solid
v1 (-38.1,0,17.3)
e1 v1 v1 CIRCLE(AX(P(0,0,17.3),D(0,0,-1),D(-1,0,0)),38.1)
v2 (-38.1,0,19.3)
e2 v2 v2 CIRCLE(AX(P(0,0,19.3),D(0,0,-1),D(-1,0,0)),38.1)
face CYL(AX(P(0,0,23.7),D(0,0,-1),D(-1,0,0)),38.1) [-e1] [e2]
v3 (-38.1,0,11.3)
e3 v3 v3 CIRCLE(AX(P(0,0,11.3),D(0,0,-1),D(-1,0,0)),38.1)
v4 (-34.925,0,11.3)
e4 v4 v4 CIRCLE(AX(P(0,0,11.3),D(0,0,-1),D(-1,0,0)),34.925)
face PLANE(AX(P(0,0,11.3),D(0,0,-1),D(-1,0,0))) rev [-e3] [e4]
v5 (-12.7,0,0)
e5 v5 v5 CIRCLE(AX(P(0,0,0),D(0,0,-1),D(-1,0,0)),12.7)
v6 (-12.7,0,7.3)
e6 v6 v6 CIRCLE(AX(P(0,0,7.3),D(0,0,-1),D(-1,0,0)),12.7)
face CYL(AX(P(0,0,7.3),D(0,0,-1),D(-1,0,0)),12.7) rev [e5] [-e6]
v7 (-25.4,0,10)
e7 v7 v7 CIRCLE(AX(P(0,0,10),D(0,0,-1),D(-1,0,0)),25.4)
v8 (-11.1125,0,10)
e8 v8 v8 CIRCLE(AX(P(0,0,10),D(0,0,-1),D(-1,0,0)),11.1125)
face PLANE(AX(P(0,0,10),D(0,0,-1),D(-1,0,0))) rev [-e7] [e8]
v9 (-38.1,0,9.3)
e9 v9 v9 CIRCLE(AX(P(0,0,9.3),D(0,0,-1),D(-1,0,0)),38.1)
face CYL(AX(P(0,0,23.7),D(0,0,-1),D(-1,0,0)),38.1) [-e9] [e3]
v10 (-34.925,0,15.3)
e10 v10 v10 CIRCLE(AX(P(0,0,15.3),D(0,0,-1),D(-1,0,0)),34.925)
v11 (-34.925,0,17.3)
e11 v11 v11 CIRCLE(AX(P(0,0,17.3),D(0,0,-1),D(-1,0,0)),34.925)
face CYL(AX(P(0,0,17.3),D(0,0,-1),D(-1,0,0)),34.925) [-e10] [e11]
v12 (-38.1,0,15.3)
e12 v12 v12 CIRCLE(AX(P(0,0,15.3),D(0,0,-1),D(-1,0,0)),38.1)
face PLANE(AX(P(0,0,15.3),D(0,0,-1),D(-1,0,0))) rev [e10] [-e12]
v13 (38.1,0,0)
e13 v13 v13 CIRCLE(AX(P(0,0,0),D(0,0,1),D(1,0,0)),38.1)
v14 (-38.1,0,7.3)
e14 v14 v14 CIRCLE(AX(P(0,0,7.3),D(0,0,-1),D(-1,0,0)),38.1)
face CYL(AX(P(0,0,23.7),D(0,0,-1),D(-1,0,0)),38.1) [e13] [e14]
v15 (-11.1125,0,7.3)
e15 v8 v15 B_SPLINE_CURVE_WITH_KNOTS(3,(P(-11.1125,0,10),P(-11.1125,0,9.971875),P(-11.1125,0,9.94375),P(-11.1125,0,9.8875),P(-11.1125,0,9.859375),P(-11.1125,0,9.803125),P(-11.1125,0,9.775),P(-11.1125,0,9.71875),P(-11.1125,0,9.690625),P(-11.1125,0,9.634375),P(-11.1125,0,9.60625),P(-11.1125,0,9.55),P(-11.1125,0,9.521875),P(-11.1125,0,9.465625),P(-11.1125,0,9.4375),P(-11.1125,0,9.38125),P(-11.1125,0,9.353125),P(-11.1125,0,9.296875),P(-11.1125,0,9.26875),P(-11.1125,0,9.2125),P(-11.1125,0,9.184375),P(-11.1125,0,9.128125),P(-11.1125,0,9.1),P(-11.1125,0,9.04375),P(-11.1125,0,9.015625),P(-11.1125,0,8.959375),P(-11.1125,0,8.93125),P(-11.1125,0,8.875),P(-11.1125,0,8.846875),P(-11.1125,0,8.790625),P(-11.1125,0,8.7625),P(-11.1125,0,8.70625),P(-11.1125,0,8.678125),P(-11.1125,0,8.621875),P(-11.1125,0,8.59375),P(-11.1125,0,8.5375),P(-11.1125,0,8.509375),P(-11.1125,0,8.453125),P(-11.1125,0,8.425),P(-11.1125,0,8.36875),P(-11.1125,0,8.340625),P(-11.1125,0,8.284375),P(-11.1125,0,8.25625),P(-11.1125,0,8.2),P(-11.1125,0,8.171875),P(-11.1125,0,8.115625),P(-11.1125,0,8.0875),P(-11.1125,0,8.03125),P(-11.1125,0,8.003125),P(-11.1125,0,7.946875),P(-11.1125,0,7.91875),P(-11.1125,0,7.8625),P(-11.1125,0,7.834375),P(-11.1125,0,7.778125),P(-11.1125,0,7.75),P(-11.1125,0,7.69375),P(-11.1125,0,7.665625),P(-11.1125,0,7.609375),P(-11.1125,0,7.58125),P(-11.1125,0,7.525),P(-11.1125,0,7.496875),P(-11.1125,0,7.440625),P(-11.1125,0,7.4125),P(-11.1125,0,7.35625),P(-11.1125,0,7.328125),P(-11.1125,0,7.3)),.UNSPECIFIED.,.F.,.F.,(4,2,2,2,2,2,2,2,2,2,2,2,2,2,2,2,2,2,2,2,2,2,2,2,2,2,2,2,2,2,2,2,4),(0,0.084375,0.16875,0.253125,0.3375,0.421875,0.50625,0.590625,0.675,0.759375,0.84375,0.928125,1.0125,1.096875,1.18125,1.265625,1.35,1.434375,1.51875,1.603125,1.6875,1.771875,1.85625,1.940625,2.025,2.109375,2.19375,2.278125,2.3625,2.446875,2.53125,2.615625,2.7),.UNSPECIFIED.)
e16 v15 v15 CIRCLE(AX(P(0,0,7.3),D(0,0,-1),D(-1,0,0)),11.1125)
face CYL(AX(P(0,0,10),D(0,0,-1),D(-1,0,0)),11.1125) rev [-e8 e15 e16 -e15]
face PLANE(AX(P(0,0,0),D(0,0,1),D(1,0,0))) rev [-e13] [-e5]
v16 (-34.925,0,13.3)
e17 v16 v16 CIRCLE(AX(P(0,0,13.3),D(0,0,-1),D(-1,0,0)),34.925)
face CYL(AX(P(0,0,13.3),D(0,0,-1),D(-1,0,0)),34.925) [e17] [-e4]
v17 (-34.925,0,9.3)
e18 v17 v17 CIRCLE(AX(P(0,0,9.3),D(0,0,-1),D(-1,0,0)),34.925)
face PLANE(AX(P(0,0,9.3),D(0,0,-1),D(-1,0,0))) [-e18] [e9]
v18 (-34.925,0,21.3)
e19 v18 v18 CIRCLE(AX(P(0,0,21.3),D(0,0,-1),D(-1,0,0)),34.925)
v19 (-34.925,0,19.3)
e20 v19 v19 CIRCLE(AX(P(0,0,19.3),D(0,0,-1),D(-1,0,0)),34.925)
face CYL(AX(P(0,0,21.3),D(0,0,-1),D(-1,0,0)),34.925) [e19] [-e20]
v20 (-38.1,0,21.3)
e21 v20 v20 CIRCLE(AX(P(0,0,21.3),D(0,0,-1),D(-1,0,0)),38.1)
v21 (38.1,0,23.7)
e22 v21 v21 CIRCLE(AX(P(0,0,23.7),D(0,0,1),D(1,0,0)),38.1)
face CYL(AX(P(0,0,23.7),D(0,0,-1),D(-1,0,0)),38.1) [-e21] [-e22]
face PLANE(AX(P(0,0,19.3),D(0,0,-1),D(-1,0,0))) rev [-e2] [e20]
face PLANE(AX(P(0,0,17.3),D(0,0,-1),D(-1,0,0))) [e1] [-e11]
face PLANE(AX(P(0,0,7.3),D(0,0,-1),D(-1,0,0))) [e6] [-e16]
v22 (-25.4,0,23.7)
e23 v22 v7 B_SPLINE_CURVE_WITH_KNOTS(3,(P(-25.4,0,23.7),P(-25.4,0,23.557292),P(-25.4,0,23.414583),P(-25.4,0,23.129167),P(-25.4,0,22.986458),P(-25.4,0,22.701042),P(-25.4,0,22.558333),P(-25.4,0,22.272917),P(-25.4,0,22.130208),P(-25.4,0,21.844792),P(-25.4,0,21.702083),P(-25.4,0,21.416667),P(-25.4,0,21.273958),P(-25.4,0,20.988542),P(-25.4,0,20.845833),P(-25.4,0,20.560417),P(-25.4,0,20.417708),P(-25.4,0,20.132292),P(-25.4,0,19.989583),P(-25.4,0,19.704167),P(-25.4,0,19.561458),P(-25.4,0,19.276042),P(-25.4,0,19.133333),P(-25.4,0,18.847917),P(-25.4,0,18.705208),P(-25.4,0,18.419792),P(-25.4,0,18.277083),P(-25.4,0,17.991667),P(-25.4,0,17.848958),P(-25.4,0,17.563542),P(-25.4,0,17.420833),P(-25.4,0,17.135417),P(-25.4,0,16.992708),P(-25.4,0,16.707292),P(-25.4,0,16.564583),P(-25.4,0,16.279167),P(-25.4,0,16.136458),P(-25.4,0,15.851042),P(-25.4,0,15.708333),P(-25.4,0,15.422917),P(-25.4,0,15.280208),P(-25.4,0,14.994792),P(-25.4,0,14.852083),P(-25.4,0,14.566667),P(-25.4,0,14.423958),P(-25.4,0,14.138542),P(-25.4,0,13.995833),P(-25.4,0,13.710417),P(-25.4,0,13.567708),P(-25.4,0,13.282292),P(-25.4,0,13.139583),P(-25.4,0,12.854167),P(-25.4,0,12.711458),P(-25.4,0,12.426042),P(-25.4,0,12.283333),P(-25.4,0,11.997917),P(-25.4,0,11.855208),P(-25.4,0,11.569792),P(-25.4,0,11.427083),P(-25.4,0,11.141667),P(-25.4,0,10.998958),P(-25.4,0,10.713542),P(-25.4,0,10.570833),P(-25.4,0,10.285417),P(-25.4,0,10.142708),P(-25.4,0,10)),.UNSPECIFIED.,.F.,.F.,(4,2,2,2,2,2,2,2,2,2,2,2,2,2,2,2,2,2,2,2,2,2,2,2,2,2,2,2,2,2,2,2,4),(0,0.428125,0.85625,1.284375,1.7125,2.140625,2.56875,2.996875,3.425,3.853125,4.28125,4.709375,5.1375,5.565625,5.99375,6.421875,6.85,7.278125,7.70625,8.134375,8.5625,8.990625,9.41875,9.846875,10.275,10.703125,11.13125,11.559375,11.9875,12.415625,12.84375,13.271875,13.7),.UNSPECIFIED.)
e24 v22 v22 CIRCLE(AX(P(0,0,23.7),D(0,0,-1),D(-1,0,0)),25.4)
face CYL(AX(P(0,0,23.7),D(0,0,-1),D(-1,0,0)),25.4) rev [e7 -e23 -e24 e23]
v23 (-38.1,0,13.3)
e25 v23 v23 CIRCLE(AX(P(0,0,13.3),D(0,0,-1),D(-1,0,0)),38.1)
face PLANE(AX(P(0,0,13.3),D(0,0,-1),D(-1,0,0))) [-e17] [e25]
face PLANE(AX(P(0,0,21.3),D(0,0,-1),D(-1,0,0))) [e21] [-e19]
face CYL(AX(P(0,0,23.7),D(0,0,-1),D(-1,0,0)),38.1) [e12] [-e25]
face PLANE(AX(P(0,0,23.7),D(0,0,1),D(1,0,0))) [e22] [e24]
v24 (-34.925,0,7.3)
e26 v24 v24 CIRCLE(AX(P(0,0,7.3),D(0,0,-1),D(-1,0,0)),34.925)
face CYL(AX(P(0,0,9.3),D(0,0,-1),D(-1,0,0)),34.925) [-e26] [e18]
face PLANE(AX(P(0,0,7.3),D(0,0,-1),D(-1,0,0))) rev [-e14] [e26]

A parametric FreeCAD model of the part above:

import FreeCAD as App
import Part
import Sketcher

V = App.Vector
Q = App.Units.Quantity

doc = App.newDocument("Part")
body = doc.addObject("PartDesign::Body", "Body")

# Sketch on XY plane
sketch1 = body.newObject("Sketcher::SketchObject", "Sketch")
sketch1.AttachmentSupport = (doc.getObject("XY_Plane"), [""])
sketch1.MapMode = "FlatFace"
sketch1.addGeometry(Part.Circle(V(0, 0, 0), V(0, 0, 1), 38), False)
sketch1.addConstraint([
    Sketcher.Constraint("Coincident", 0, 3, -1, 1),
    Sketcher.Constraint("Diameter", 0, Q("3 in")),
])
pad1 = body.newObject("PartDesign::Pad", "Pad")
pad1.Profile = sketch1
pad1.Length = 23.7

# Sketch on XY plane
sketch2 = body.newObject("Sketcher::SketchObject", "Sketch001")
sketch2.AttachmentSupport = (doc.getObject("XY_Plane"), [""])
sketch2.MapMode = "FlatFace"
sketch2.addGeometry(Part.Circle(V(0, 0, 0), V(0, 0, 1), 13), False)
sketch2.addConstraint([
    Sketcher.Constraint("Coincident", 0, 3, -1, 1),
    Sketcher.Constraint("Diameter", 0, Q("1 in")),
])
pocket1 = body.newObject("PartDesign::Pocket", "Pocket")
pocket1.Profile = sketch2
pocket1.Length = 7.3
pocket1.Reversed = True

# Sketch on XY plane
sketch3 = body.newObject("Sketcher::SketchObject", "Sketch002")
sketch3.AttachmentSupport = (doc.getObject("XY_Plane"), [""])
sketch3.MapMode = "FlatFace"
sketch3.AttachmentOffset = App.Placement(V(0, 0, 7.3), App.Rotation())
sketch3.addGeometry(Part.Circle(V(0, 0, 0), V(0, 0, 1), 11), False)
sketch3.addConstraint([
    Sketcher.Constraint("Coincident", 0, 3, -1, 1),
    Sketcher.Constraint("Diameter", 0, Q("0.875 in")),
])
pocket2 = body.newObject("PartDesign::Pocket", "Pocket001")
pocket2.Profile = sketch3
pocket2.Length = 2.7
pocket2.Reversed = True

# Sketch on XY plane
sketch4 = body.newObject("Sketcher::SketchObject", "Sketch003")
sketch4.AttachmentSupport = (doc.getObject("XY_Plane"), [""])
sketch4.MapMode = "FlatFace"
sketch4.AttachmentOffset = App.Placement(V(0, 0, 10), App.Rotation())
sketch4.addGeometry(Part.Circle(V(0, 0, 0), V(0, 0, 1), 25), False)
sketch4.addConstraint([
    Sketcher.Constraint("Coincident", 0, 3, -1, 1),
    Sketcher.Constraint("Diameter", 0, Q("2 in")),
])
pocket3 = body.newObject("PartDesign::Pocket", "Pocket002")
pocket3.Profile = sketch4
pocket3.Type = "ThroughAll"
pocket3.Reversed = True

# Sketch on XY plane
sketch5 = body.newObject("Sketcher::SketchObject", "Sketch004")
sketch5.AttachmentSupport = (doc.getObject("XY_Plane"), [""])
sketch5.MapMode = "FlatFace"
sketch5.AttachmentOffset = App.Placement(V(0, 0, 7.3), App.Rotation())
sketch5.addGeometry([
    Part.LineSegment(V(50, 50, 0), V(50, -50, 0)),  # 0
    Part.LineSegment(V(50, -50, 0), V(-50, -50, 0)),  # 1
    Part.LineSegment(V(-50, -50, 0), V(-50, 50, 0)),  # 2
    Part.LineSegment(V(-50, 50, 0), V(50, 50, 0)),  # 3
    Part.Circle(V(0, 0, 0), V(0, 0, 1), 35),  # 4
], False)
sketch5.addConstraint([
    Sketcher.Constraint("Coincident", 0, 2, 1, 1),
    Sketcher.Constraint("Coincident", 1, 2, 2, 1),
    Sketcher.Constraint("Coincident", 2, 2, 3, 1),
    Sketcher.Constraint("Coincident", 3, 2, 0, 1),
    Sketcher.Constraint("Vertical", 0),
    Sketcher.Constraint("Horizontal", 1),
    Sketcher.Constraint("Vertical", 2),
    Sketcher.Constraint("Horizontal", 3),
    Sketcher.Constraint("Coincident", 4, 3, -1, 1),
    Sketcher.Constraint("Symmetric", 0, 2, 2, 2, -1, 1),
    Sketcher.Constraint("Equal", 3, 0),
    Sketcher.Constraint("Diameter", 4, Q("2.75 in")),
    Sketcher.Constraint("DistanceX", 1, 2, 1, 1, Q("100.268 mm")),
])
pocket4 = body.newObject("PartDesign::Pocket", "Pocket003")
pocket4.Profile = sketch5
pocket4.Length = 2
pocket4.Reversed = True
doc.recompute()

linearpattern = body.newObject("PartDesign::LinearPattern", "LinearPattern")
linearpattern.Originals = [pocket4]
linearpattern.Direction = (doc.getObject("Z_Axis"), [""])
linearpattern.Mode = "offset"
linearpattern.Offset = 4
linearpattern.Occurrences = 4
body.Tip = linearpattern

doc.recompute()
